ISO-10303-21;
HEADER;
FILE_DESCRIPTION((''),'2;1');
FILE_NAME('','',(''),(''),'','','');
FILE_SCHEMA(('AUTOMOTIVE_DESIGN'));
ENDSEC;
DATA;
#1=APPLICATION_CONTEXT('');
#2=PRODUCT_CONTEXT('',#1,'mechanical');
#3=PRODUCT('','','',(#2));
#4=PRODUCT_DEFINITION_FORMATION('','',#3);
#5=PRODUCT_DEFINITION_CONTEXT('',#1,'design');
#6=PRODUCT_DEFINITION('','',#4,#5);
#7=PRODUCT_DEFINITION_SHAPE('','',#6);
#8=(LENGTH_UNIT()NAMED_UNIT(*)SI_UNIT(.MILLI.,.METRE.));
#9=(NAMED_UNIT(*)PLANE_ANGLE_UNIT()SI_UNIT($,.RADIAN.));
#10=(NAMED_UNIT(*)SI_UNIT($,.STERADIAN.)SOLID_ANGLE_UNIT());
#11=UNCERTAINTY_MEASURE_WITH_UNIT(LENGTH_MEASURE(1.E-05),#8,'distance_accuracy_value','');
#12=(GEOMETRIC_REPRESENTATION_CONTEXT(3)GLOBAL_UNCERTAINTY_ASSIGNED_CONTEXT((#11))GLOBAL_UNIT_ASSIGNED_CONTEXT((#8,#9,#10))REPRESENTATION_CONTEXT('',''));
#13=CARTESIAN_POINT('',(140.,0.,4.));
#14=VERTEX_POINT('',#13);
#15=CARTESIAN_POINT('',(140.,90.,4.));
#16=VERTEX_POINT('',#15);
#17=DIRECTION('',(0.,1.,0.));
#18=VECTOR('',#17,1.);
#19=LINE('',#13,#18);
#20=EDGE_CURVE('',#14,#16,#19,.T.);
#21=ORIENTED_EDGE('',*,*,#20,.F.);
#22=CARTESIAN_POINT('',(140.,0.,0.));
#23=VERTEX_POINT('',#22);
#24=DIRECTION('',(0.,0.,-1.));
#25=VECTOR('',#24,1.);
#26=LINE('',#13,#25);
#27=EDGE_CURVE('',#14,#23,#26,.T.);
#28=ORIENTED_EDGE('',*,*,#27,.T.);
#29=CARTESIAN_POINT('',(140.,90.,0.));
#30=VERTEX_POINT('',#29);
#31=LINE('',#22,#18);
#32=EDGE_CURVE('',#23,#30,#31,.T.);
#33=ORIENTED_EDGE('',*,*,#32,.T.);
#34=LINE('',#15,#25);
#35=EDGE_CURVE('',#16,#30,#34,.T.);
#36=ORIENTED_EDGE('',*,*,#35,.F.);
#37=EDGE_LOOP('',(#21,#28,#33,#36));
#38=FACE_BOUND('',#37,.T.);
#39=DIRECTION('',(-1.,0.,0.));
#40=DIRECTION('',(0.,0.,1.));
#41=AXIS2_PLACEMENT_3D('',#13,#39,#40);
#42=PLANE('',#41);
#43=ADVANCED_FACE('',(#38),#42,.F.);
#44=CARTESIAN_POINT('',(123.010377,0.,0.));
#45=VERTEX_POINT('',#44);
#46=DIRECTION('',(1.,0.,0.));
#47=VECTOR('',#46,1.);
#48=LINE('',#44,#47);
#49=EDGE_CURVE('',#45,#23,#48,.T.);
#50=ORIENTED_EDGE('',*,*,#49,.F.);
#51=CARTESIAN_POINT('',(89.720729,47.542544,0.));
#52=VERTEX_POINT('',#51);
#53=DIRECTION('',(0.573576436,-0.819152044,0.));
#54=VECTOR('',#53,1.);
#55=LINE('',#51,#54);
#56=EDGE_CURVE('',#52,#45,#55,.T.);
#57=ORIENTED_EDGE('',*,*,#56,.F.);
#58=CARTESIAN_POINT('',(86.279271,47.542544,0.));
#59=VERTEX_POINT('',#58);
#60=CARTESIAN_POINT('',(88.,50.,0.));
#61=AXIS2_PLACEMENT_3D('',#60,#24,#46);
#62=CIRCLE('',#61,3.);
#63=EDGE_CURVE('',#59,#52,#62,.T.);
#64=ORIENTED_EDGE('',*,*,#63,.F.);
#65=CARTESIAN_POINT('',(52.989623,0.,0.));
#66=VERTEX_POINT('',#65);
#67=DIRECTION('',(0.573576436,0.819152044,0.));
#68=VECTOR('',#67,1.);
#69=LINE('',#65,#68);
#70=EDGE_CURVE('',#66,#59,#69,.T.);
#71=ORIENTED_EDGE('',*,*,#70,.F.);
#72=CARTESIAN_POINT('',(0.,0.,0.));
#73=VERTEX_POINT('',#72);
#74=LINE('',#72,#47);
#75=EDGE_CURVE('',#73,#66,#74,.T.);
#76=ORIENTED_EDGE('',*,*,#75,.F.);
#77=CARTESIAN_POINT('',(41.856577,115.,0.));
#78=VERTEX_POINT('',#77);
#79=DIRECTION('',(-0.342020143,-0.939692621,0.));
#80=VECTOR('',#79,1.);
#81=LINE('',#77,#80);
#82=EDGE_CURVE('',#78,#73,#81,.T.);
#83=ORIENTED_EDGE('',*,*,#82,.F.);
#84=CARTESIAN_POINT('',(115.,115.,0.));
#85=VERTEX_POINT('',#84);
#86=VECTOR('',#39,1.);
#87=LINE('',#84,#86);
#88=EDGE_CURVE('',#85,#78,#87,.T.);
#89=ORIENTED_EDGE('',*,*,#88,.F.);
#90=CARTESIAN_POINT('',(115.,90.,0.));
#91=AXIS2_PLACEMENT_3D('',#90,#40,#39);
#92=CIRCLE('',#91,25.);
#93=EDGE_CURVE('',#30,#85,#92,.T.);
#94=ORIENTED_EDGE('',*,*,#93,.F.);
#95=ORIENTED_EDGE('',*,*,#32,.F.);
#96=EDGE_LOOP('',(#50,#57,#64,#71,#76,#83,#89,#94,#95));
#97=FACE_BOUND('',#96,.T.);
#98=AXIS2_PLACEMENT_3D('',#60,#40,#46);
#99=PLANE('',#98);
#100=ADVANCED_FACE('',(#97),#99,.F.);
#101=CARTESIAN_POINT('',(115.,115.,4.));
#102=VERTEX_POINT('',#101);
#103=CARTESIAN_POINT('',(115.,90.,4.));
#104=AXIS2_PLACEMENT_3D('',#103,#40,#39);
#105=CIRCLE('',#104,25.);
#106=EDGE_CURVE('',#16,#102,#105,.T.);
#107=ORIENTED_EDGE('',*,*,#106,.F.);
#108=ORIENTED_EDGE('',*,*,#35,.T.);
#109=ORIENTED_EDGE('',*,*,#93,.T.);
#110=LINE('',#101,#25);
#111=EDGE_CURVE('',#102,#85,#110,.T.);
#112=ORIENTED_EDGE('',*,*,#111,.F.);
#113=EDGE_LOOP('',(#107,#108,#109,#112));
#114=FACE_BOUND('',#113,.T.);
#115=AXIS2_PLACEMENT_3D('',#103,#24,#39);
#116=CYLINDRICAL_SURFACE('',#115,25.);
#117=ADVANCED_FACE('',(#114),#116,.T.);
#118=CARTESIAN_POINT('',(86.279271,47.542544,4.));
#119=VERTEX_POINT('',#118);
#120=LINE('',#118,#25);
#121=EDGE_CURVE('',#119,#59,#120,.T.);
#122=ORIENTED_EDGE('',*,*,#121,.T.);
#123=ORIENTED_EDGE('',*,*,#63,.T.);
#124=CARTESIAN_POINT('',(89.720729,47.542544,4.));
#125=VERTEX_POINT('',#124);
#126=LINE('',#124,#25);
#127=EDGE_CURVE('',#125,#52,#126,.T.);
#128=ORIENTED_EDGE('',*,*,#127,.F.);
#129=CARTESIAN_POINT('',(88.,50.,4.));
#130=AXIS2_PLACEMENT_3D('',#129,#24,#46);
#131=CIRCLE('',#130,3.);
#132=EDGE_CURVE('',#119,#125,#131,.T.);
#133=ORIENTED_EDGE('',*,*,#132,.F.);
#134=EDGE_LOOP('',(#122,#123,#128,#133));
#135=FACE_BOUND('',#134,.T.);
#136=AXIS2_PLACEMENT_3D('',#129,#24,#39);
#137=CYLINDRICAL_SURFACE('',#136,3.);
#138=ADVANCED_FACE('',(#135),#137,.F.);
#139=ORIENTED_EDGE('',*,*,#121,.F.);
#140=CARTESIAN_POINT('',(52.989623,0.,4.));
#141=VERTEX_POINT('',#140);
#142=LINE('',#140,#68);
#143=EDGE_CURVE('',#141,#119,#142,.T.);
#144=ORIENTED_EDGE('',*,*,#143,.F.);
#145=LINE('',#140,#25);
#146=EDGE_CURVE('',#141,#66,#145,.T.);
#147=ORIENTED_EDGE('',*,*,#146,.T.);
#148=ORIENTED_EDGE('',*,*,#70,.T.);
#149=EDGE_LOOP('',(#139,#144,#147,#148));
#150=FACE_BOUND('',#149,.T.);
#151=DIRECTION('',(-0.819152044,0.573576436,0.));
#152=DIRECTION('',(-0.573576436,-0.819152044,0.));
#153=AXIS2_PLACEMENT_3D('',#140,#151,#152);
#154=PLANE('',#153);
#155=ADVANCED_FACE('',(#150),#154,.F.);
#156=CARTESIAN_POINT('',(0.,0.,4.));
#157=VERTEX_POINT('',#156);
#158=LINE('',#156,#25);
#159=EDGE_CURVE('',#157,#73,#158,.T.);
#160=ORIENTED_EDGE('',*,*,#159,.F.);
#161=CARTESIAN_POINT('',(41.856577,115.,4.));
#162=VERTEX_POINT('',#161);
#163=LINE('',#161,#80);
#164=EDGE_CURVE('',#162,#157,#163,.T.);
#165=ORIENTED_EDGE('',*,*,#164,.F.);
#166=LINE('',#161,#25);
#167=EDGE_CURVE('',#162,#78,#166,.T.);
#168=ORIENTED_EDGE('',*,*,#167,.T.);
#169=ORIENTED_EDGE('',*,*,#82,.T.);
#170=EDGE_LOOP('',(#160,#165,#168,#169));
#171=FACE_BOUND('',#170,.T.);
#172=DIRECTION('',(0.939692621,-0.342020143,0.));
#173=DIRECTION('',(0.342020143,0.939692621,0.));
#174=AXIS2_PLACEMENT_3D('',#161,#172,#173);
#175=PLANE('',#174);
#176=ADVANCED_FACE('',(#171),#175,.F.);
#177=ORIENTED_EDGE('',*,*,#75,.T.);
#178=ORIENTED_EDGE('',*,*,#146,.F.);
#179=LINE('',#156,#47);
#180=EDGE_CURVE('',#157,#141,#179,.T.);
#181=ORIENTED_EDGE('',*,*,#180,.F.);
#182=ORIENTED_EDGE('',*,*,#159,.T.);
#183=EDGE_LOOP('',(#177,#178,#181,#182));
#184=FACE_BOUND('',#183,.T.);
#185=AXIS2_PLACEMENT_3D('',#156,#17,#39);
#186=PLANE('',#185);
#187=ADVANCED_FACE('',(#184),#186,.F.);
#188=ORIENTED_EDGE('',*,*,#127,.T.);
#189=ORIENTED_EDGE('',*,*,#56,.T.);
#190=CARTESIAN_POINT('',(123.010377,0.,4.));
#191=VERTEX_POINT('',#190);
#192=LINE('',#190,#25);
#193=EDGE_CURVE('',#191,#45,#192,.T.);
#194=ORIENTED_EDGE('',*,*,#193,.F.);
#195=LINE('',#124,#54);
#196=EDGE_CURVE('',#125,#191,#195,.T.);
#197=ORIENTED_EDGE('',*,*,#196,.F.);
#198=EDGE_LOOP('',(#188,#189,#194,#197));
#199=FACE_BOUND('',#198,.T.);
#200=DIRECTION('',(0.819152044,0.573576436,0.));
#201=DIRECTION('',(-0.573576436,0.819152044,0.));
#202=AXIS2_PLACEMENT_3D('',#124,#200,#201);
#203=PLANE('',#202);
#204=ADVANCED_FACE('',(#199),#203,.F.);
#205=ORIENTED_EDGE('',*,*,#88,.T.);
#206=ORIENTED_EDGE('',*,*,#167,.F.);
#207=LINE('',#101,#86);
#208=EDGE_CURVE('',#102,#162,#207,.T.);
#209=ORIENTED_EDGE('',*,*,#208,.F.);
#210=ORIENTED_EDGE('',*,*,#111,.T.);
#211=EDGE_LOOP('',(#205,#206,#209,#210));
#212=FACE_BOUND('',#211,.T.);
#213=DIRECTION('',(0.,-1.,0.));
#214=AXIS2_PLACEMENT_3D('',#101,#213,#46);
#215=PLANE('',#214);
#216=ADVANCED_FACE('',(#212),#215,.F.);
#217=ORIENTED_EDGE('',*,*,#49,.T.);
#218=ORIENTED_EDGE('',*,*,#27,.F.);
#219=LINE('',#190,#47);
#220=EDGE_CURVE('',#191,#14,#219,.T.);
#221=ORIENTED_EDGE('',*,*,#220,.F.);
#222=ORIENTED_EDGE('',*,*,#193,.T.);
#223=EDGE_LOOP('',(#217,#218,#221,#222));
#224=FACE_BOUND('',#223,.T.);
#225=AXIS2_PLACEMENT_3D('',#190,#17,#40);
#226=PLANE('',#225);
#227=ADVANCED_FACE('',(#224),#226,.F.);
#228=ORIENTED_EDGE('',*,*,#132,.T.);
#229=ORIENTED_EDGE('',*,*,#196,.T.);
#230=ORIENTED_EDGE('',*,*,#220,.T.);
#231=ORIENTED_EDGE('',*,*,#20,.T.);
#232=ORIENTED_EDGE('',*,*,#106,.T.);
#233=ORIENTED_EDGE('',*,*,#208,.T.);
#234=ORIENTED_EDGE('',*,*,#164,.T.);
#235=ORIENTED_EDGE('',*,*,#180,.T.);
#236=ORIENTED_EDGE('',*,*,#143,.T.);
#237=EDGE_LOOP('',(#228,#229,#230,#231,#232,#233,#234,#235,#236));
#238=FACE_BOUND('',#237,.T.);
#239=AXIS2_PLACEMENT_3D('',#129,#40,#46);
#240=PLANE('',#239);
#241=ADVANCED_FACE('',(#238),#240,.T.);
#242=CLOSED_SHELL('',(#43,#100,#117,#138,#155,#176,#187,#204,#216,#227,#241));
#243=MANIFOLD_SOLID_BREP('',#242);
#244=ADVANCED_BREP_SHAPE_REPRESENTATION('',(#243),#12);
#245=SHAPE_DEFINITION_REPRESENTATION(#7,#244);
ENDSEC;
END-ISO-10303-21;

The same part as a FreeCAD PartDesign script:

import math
import FreeCAD as App
import Part
import Sketcher

V = App.Vector
Q = App.Units.Quantity

doc = App.newDocument("Part")
body = doc.addObject("PartDesign::Body", "Body")

sketch1 = body.newObject("Sketcher::SketchObject", "Sketch")
sketch1.AttachmentSupport = (doc.getObject("XY_Plane"), [""])
sketch1.MapMode = "FlatFace"
sketch1.addGeometry([
    Part.LineSegment(V(0, 0, 0), V(53, 0, 0)),
    Part.LineSegment(V(53, 0, 0), V(86.3, 47.5, 0)),
    Part.ArcOfCircle(Part.Circle(V(88, 50, 0), V(0, 0, 1), 3), math.radians(-55), math.radians(235)),
    Part.LineSegment(V(89.7, 47.5, 0), V(123, 0, 0)),
    Part.LineSegment(V(123, 0, 0), V(140, 0, 0)),
    Part.LineSegment(V(140, 0, 0), V(140, 90, 0)),
    Part.ArcOfCircle(Part.Circle(V(115, 90, 0), V(0, 0, 1), 25), math.radians(0), math.radians(90)),
    Part.LineSegment(V(115, 115, 0), V(41.9, 115, 0)),
    Part.LineSegment(V(41.9, 115, 0), V(0, 0, 0)),
], False)
sketch1.addConstraint([
    Sketcher.Constraint("Coincident", 0, 2, 1, 1),
    Sketcher.Constraint("Coincident", 1, 2, 2, 2),
    Sketcher.Constraint("Coincident", 2, 1, 3, 1),
    Sketcher.Constraint("Coincident", 3, 2, 4, 1),
    Sketcher.Constraint("Coincident", 4, 2, 5, 1),
    Sketcher.Constraint("Tangent", 5, 2, 6, 1),
    Sketcher.Constraint("Tangent", 6, 2, 7, 1),
    Sketcher.Constraint("Coincident", 7, 2, 8, 1),
    Sketcher.Constraint("Coincident", 8, 2, 0, 1),
    Sketcher.Constraint("Horizontal", 0),
    Sketcher.Constraint("Horizontal", 4),
    Sketcher.Constraint("Vertical", 5),
    Sketcher.Constraint("Horizontal", 7),
    Sketcher.Constraint("Coincident", 8, 2, -1, 1),
    Sketcher.Constraint("PointOnObject", 3, 2, -1),
    Sketcher.Constraint("Horizontal", 1, 2, 2, 1),
    Sketcher.Constraint("Equal", 1, 3),
    Sketcher.Constraint("Radius", 2, 3.0),
    Sketcher.Constraint("Radius", 6, 25.0),
    Sketcher.Constraint("DistanceY", 5, 1, 5, 2, 90.0),
    Sketcher.Constraint("Angle", 1, Q("55 deg")),
    Sketcher.Constraint("Angle", 8, Q("-110 deg")),
    Sketcher.Constraint("DistanceX", -1, 1, 2, 3, 88.0),
    Sketcher.Constraint("DistanceY", -1, 1, 2, 3, 50.0),
    Sketcher.Constraint("DistanceX", -1, 1, 6, 3, 115.0),
    Sketcher.Constraint("Distance", 1, 58.038729),
])
pad1 = body.newObject("PartDesign::Pad", "Pad")
pad1.Profile = sketch1
pad1.Length = 4

doc.recompute()
